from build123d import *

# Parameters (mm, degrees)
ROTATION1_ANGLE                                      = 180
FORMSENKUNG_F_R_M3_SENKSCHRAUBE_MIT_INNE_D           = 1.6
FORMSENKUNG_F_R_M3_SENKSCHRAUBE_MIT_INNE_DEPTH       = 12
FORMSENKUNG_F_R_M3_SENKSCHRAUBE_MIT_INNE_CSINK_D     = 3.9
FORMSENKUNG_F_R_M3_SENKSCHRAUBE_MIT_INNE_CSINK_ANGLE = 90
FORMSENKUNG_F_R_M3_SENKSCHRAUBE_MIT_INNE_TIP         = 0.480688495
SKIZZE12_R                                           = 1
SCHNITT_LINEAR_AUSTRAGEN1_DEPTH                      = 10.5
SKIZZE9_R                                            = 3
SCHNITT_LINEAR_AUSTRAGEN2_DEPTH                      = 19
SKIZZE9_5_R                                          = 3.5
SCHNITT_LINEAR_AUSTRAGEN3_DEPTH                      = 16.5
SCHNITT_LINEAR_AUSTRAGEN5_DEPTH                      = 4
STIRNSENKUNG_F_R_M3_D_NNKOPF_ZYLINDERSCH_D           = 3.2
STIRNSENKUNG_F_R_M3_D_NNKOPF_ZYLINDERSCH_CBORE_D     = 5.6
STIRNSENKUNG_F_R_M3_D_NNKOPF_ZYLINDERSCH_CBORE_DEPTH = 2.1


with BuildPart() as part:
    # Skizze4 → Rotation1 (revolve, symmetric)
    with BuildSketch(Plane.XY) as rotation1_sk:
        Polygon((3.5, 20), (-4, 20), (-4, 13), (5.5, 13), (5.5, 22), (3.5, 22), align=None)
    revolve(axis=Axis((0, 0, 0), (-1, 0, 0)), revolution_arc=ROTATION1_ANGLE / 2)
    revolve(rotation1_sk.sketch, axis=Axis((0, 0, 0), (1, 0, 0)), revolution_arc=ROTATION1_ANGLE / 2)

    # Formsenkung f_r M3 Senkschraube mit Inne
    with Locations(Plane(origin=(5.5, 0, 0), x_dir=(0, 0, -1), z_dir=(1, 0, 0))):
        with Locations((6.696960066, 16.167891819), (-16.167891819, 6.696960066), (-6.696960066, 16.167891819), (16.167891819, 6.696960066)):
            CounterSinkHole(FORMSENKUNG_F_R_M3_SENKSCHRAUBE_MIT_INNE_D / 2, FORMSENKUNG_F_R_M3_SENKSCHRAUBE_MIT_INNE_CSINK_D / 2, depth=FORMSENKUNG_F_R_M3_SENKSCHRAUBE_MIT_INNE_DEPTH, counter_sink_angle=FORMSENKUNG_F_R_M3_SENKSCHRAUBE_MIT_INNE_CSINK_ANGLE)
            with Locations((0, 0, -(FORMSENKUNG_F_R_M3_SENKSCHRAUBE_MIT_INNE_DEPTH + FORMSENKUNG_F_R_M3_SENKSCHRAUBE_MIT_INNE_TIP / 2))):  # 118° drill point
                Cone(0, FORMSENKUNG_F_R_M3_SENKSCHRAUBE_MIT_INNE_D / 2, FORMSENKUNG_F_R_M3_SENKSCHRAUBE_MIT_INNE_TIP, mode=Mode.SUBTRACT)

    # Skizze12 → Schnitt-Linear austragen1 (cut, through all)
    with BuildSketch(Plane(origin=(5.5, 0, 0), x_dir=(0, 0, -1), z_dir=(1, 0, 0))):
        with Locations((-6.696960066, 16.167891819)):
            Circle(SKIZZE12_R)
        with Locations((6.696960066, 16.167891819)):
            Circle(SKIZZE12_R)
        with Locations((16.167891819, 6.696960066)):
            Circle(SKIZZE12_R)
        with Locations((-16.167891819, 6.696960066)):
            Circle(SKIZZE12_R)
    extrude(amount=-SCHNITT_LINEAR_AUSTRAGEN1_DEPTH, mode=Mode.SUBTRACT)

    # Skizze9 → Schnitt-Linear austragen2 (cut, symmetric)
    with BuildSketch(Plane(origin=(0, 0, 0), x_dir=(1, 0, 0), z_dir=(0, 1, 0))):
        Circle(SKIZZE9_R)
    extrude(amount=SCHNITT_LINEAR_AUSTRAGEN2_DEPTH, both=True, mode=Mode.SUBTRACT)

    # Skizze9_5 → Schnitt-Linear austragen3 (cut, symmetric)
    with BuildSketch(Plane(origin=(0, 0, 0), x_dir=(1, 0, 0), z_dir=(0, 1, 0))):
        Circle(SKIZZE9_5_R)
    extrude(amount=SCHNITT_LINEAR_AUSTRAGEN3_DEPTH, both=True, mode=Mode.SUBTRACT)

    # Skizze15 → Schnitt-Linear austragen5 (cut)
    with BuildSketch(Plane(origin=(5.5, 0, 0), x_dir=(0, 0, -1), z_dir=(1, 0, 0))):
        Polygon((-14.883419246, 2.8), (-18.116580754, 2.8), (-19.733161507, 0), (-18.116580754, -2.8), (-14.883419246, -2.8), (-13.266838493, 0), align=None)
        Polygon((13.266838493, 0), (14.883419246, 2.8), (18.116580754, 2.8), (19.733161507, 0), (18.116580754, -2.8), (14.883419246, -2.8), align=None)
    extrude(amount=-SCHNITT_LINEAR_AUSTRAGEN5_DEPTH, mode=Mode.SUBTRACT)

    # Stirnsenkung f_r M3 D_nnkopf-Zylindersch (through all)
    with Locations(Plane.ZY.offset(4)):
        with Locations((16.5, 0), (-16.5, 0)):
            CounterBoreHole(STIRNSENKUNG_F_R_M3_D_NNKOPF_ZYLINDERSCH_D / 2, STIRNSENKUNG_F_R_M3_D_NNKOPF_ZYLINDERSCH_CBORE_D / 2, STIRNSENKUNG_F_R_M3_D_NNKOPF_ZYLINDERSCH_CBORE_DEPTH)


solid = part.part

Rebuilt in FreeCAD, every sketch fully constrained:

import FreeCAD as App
import Part
import Sketcher

V = App.Vector
Q = App.Units.Quantity

doc = App.newDocument("Part")
params = doc.addObject("Spreadsheet::Sheet", "Params")
for row, (alias, value) in enumerate([
    ("sketch1_width", "2 mm"),
    ("sketch1_height", "7 mm"),
    ("sketch1_width2", "7.5 mm"),
    ("revolution_angle", "90 deg"),
    ("sketch2_width", "2 mm"),
    ("sketch2_height", "7 mm"),
    ("sketch2_width2", "7.5 mm"),
    ("revolution2_angle", "90 deg"),
    ("sketch3_diameter", "1.6 mm"),
    ("hole_diameter", "1.6 mm"),
    ("hole_depth", "12 mm"),
    ("hole_csink_diameter", "3.9 mm"),
    ("sketch4_diameter", "2 mm"),
    ("sketch5_diameter", "6 mm"),
    ("pocket2_length", "38 mm"),
    ("sketch6_diameter", "7 mm"),
    ("pocket3_length", "33 mm"),
    ("pocket4_length", "4 mm"),
    ("sketch8_diameter", "3.2 mm"),
    ("hole2_diameter", "3.2 mm"),
    ("hole2_cbore_diameter", "5.6 mm"),
    ("hole2_cbore_depth", "2.1 mm"),
], start=1):
    params.set(f"A{row}", alias)
    params.set(f"B{row}", "=" + value)
    params.setAlias(f"B{row}", alias)

body = doc.addObject("PartDesign::Body", "Body")

sketch1 = doc.addObject("Sketcher::SketchObject", "Sketch")
body.addObject(sketch1)
sketch1.AttachmentSupport = (doc.XY_Plane, [""])
sketch1.MapMode = "FlatFace"
sketch1.addGeometry(Part.LineSegment(V(3.5, 20, 0), V(-4, 20, 0)), False)
sketch1.addGeometry(Part.LineSegment(V(-4, 20, 0), V(-4, 13, 0)), False)
sketch1.addGeometry(Part.LineSegment(V(-4, 13, 0), V(5.5, 13, 0)), False)
sketch1.addGeometry(Part.LineSegment(V(5.5, 13, 0), V(5.5, 22, 0)), False)
sketch1.addGeometry(Part.LineSegment(V(5.5, 22, 0), V(3.5, 22, 0)), False)
sketch1.addGeometry(Part.LineSegment(V(3.5, 22, 0), V(3.5, 20, 0)), False)
sketch1.addConstraint(Sketcher.Constraint("Coincident", 0, 2, 1, 1))
sketch1.addConstraint(Sketcher.Constraint("Coincident", 1, 2, 2, 1))
sketch1.addConstraint(Sketcher.Constraint("Coincident", 2, 2, 3, 1))
sketch1.addConstraint(Sketcher.Constraint("Coincident", 3, 2, 4, 1))
sketch1.addConstraint(Sketcher.Constraint("Coincident", 4, 2, 5, 1))
sketch1.addConstraint(Sketcher.Constraint("Coincident", 5, 2, 0, 1))
sketch1.addConstraint(Sketcher.Constraint("Horizontal", 0))
sketch1.addConstraint(Sketcher.Constraint("Vertical", 1))
sketch1.addConstraint(Sketcher.Constraint("Horizontal", 2))
sketch1.addConstraint(Sketcher.Constraint("Vertical", 3))
sketch1.addConstraint(Sketcher.Constraint("Horizontal", 4))
sketch1.addConstraint(Sketcher.Constraint("Vertical", 5))
sketch1.addConstraint(Sketcher.Constraint("Equal", 4, 5))
sketch1.addConstraint(Sketcher.Constraint("DistanceX", 4, 2, 4, 1, Q("2 mm")))
sketch1.addConstraint(Sketcher.Constraint("DistanceY", 1, 2, 1, 1, Q("7 mm")))
sketch1.addConstraint(Sketcher.Constraint("DistanceX", 0, 2, 0, 1, Q("7.5 mm")))
sketch1.addConstraint(Sketcher.Constraint("DistanceX", 0, 2, -1, 1, Q("4 mm")))
sketch1.addConstraint(Sketcher.Constraint("DistanceY", -1, 1, 0, 2, Q("20 mm")))
sketch1.setExpression("Constraints[13]", "Params.sketch1_width")
sketch1.setExpression("Constraints[14]", "Params.sketch1_height")
sketch1.setExpression("Constraints[15]", "Params.sketch1_width2")
revolution = doc.addObject("PartDesign::Revolution", "Revolution")
body.addObject(revolution)
revolution.Profile = sketch1
revolution.ReferenceAxis = (sketch1, ["H_Axis"])
revolution.setExpression("Angle", "Params.revolution_angle")
revolution.Reversed = True

sketch2 = doc.addObject("Sketcher::SketchObject", "Sketch001")
body.addObject(sketch2)
sketch2.AttachmentSupport = (doc.XY_Plane, [""])
sketch2.MapMode = "FlatFace"
sketch2.addGeometry(Part.LineSegment(V(3.5, 20, 0), V(-4, 20, 0)), False)
sketch2.addGeometry(Part.LineSegment(V(-4, 20, 0), V(-4, 13, 0)), False)
sketch2.addGeometry(Part.LineSegment(V(-4, 13, 0), V(5.5, 13, 0)), False)
sketch2.addGeometry(Part.LineSegment(V(5.5, 13, 0), V(5.5, 22, 0)), False)
sketch2.addGeometry(Part.LineSegment(V(5.5, 22, 0), V(3.5, 22, 0)), False)
sketch2.addGeometry(Part.LineSegment(V(3.5, 22, 0), V(3.5, 20, 0)), False)
sketch2.addConstraint(Sketcher.Constraint("Coincident", 0, 2, 1, 1))
sketch2.addConstraint(Sketcher.Constraint("Coincident", 1, 2, 2, 1))
sketch2.addConstraint(Sketcher.Constraint("Coincident", 2, 2, 3, 1))
sketch2.addConstraint(Sketcher.Constraint("Coincident", 3, 2, 4, 1))
sketch2.addConstraint(Sketcher.Constraint("Coincident", 4, 2, 5, 1))
sketch2.addConstraint(Sketcher.Constraint("Coincident", 5, 2, 0, 1))
sketch2.addConstraint(Sketcher.Constraint("Horizontal", 0))
sketch2.addConstraint(Sketcher.Constraint("Vertical", 1))
sketch2.addConstraint(Sketcher.Constraint("Horizontal", 2))
sketch2.addConstraint(Sketcher.Constraint("Vertical", 3))
sketch2.addConstraint(Sketcher.Constraint("Horizontal", 4))
sketch2.addConstraint(Sketcher.Constraint("Vertical", 5))
sketch2.addConstraint(Sketcher.Constraint("Equal", 4, 5))
sketch2.addConstraint(Sketcher.Constraint("DistanceX", 4, 2, 4, 1, Q("2 mm")))
sketch2.addConstraint(Sketcher.Constraint("DistanceY", 1, 2, 1, 1, Q("7 mm")))
sketch2.addConstraint(Sketcher.Constraint("DistanceX", 0, 2, 0, 1, Q("7.5 mm")))
sketch2.addConstraint(Sketcher.Constraint("DistanceX", 0, 2, -1, 1, Q("4 mm")))
sketch2.addConstraint(Sketcher.Constraint("DistanceY", -1, 1, 0, 2, Q("20 mm")))
sketch2.setExpression("Constraints[13]", "Params.sketch2_width")
sketch2.setExpression("Constraints[14]", "Params.sketch2_height")
sketch2.setExpression("Constraints[15]", "Params.sketch2_width2")
revolution2 = doc.addObject("PartDesign::Revolution", "Revolution001")
body.addObject(revolution2)
revolution2.Profile = sketch2
revolution2.ReferenceAxis = (sketch2, ["H_Axis"])
revolution2.setExpression("Angle", "Params.revolution2_angle")

sketch3 = doc.addObject("Sketcher::SketchObject", "Sketch002")
body.addObject(sketch3)
sketch3.AttachmentSupport = (doc.YZ_Plane, [""])
sketch3.MapMode = "FlatFace"
sketch3.AttachmentOffset = App.Placement(V(0, 0, 5.5), App.Rotation())
sketch3.addGeometry(Part.Circle(V(16.2, -6.7, 0), V(0, 0, 1), 0.8), False)
sketch3.addGeometry(Part.Circle(V(6.7, 16.2, 0), V(0, 0, 1), 0.8), False)
sketch3.addGeometry(Part.Circle(V(16.2, 6.7, 0), V(0, 0, 1), 0.8), False)
sketch3.addGeometry(Part.Circle(V(6.7, -16.2, 0), V(0, 0, 1), 0.8), False)
sketch3.addConstraint(Sketcher.Constraint("Equal", 0, 1))
sketch3.addConstraint(Sketcher.Constraint("Equal", 1, 2))
sketch3.addConstraint(Sketcher.Constraint("Equal", 2, 3))
sketch3.addConstraint(Sketcher.Constraint("Symmetric", 0, 3, 2, 3, -1))
sketch3.addConstraint(Sketcher.Constraint("Symmetric", 1, 3, 3, 3, -1))
sketch3.addConstraint(Sketcher.Constraint("Diameter", 0, Q("1.6 mm")))
sketch3.addConstraint(Sketcher.Constraint("DistanceX", -1, 1, 0, 3, Q("16.167892 mm")))
sketch3.addConstraint(Sketcher.Constraint("DistanceY", 0, 3, -1, 1, Q("6.69696 mm")))
sketch3.addConstraint(Sketcher.Constraint("DistanceX", -1, 1, 1, 3, Q("6.69696 mm")))
sketch3.addConstraint(Sketcher.Constraint("DistanceY", -1, 1, 1, 3, Q("16.167892 mm")))
sketch3.setExpression("Constraints[5]", "Params.sketch3_diameter")
doc.recompute()
hole = doc.addObject("PartDesign::Hole", "Hole")
body.addObject(hole)
hole.Profile = sketch3
hole.ThreadType = "None"
hole.setExpression("Diameter", "Params.hole_diameter")
hole.DepthType = "Dimension"
hole.setExpression("Depth", "Params.hole_depth")
hole.DrillPoint = "Angled"
hole.DrillPointAngle = 118
hole.HoleCutType = "Countersink"
hole.setExpression("HoleCutDiameter", "Params.hole_csink_diameter")
hole.HoleCutCountersinkAngle = 90

sketch4 = doc.addObject("Sketcher::SketchObject", "Sketch003")
body.addObject(sketch4)
sketch4.AttachmentSupport = (doc.YZ_Plane, [""])
sketch4.MapMode = "FlatFace"
sketch4.AttachmentOffset = App.Placement(V(0, 0, 5.5), App.Rotation())
sketch4.addGeometry(Part.Circle(V(16.2, 6.7, 0), V(0, 0, 1), 1), False)
sketch4.addGeometry(Part.Circle(V(16.2, -6.7, 0), V(0, 0, 1), 1), False)
sketch4.addGeometry(Part.Circle(V(6.7, -16.2, 0), V(0, 0, 1), 1), False)
sketch4.addGeometry(Part.Circle(V(6.7, 16.2, 0), V(0, 0, 1), 1), False)
sketch4.addConstraint(Sketcher.Constraint("Equal", 0, 1))
sketch4.addConstraint(Sketcher.Constraint("Equal", 1, 2))
sketch4.addConstraint(Sketcher.Constraint("Equal", 2, 3))
sketch4.addConstraint(Sketcher.Constraint("Symmetric", 0, 3, 1, 3, -1))
sketch4.addConstraint(Sketcher.Constraint("Symmetric", 2, 3, 3, 3, -1))
sketch4.addConstraint(Sketcher.Constraint("Diameter", 0, Q("2 mm")))
sketch4.addConstraint(Sketcher.Constraint("DistanceX", -1, 1, 0, 3, Q("16.167892 mm")))
sketch4.addConstraint(Sketcher.Constraint("DistanceY", -1, 1, 0, 3, Q("6.69696 mm")))
sketch4.addConstraint(Sketcher.Constraint("DistanceX", -1, 1, 2, 3, Q("6.69696 mm")))
sketch4.addConstraint(Sketcher.Constraint("DistanceY", 2, 3, -1, 1, Q("16.167892 mm")))
sketch4.setExpression("Constraints[5]", "Params.sketch4_diameter")
pocket1 = doc.addObject("PartDesign::Pocket", "Pocket")
body.addObject(pocket1)
pocket1.Profile = sketch4
pocket1.Type = "ThroughAll"

sketch5 = doc.addObject("Sketcher::SketchObject", "Sketch004")
body.addObject(sketch5)
sketch5.AttachmentSupport = (doc.XZ_Plane, [""])
sketch5.MapMode = "FlatFace"
sketch5.addGeometry(Part.Circle(V(0, 0, 0), V(0, 0, 1), 3), False)
sketch5.addConstraint(Sketcher.Constraint("Coincident", 0, 3, -1, 1))
sketch5.addConstraint(Sketcher.Constraint("Diameter", 0, Q("6 mm")))
sketch5.setExpression("Constraints[1]", "Params.sketch5_diameter")
pocket2 = doc.addObject("PartDesign::Pocket", "Pocket001")
body.addObject(pocket2)
pocket2.Profile = sketch5
pocket2.setExpression("Length", "Params.pocket2_length")
pocket2.Midplane = True

sketch6 = doc.addObject("Sketcher::SketchObject", "Sketch005")
body.addObject(sketch6)
sketch6.AttachmentSupport = (doc.XZ_Plane, [""])
sketch6.MapMode = "FlatFace"
sketch6.addGeometry(Part.Circle(V(0, 0, 0), V(0, 0, 1), 3.5), False)
sketch6.addConstraint(Sketcher.Constraint("Coincident", 0, 3, -1, 1))
sketch6.addConstraint(Sketcher.Constraint("Diameter", 0, Q("7 mm")))
sketch6.setExpression("Constraints[1]", "Params.sketch6_diameter")
pocket3 = doc.addObject("PartDesign::Pocket", "Pocket002")
body.addObject(pocket3)
pocket3.Profile = sketch6
pocket3.setExpression("Length", "Params.pocket3_length")
pocket3.Midplane = True

sketch7 = doc.addObject("Sketcher::SketchObject", "Sketch006")
body.addObject(sketch7)
sketch7.AttachmentSupport = (doc.YZ_Plane, [""])
sketch7.MapMode = "FlatFace"
sketch7.AttachmentOffset = App.Placement(V(0, 0, 5.5), App.Rotation())
sketch7.addGeometry(Part.LineSegment(V(2.8, 14.9, 0), V(2.8, 18.1, 0)), False)
sketch7.addGeometry(Part.LineSegment(V(2.8, 18.1, 0), V(0, 19.7, 0)), False)
sketch7.addGeometry(Part.LineSegment(V(0, 19.7, 0), V(-2.8, 18.1, 0)), False)
sketch7.addGeometry(Part.LineSegment(V(-2.8, 18.1, 0), V(-2.8, 14.9, 0)), False)
sketch7.addGeometry(Part.LineSegment(V(-2.8, 14.9, 0), V(0, 13.3, 0)), False)
sketch7.addGeometry(Part.LineSegment(V(0, 13.3, 0), V(2.8, 14.9, 0)), False)
sketch7.addGeometry(Part.LineSegment(V(2.8, -14.9, 0), V(0, -13.3, 0)), False)
sketch7.addGeometry(Part.LineSegment(V(0, -13.3, 0), V(-2.8, -14.9, 0)), False)
sketch7.addGeometry(Part.LineSegment(V(-2.8, -14.9, 0), V(-2.8, -18.1, 0)), False)
sketch7.addGeometry(Part.LineSegment(V(-2.8, -18.1, 0), V(0, -19.7, 0)), False)
sketch7.addGeometry(Part.LineSegment(V(0, -19.7, 0), V(2.8, -18.1, 0)), False)
sketch7.addGeometry(Part.LineSegment(V(2.8, -18.1, 0), V(2.8, -14.9, 0)), False)
sketch7.addConstraint(Sketcher.Constraint("Coincident", 0, 2, 1, 1))
sketch7.addConstraint(Sketcher.Constraint("Coincident", 1, 2, 2, 1))
sketch7.addConstraint(Sketcher.Constraint("Coincident", 2, 2, 3, 1))
sketch7.addConstraint(Sketcher.Constraint("Coincident", 3, 2, 4, 1))
sketch7.addConstraint(Sketcher.Constraint("Coincident", 4, 2, 5, 1))
sketch7.addConstraint(Sketcher.Constraint("Coincident", 5, 2, 0, 1))
sketch7.addConstraint(Sketcher.Constraint("Coincident", 6, 2, 7, 1))
sketch7.addConstraint(Sketcher.Constraint("Coincident", 7, 2, 8, 1))
sketch7.addConstraint(Sketcher.Constraint("Coincident", 8, 2, 9, 1))
sketch7.addConstraint(Sketcher.Constraint("Coincident", 9, 2, 10, 1))
sketch7.addConstraint(Sketcher.Constraint("Coincident", 10, 2, 11, 1))
sketch7.addConstraint(Sketcher.Constraint("Coincident", 11, 2, 6, 1))
sketch7.addConstraint(Sketcher.Constraint("Vertical", 0))
sketch7.addConstraint(Sketcher.Constraint("Vertical", 3))
sketch7.addConstraint(Sketcher.Constraint("Vertical", 8))
sketch7.addConstraint(Sketcher.Constraint("Vertical", 11))
sketch7.addConstraint(Sketcher.Constraint("Symmetric", 4, 2, 6, 2, -1, 1))
sketch7.addConstraint(Sketcher.Constraint("Symmetric", 5, 2, 7, 2, -1, 1))
sketch7.addConstraint(Sketcher.Constraint("Symmetric", 1, 2, 9, 2, -1, 1))
sketch7.addConstraint(Sketcher.Constraint("Symmetric", 2, 2, 10, 2, -1, 1))
sketch7.addConstraint(Sketcher.Constraint("Symmetric", 0, 2, 2, 2, -2))
sketch7.addConstraint(Sketcher.Constraint("PointOnObject", 1, 2, -2))
sketch7.addConstraint(Sketcher.Constraint("PointOnObject", 4, 2, -2))
sketch7.addConstraint(Sketcher.Constraint("Parallel", 1, 4))
sketch7.addConstraint(Sketcher.Constraint("Parallel", 2, 5))
sketch7.addConstraint(Sketcher.Constraint("Parallel", 4, 6))
sketch7.addConstraint(Sketcher.Constraint("Parallel", 6, 9))
sketch7.addConstraint(Sketcher.Constraint("Angle", 1, Q("150 deg")))
sketch7.addConstraint(Sketcher.Constraint("DistanceY", 7, 2, 2, 2, Q("33 mm")))
sketch7.addConstraint(Sketcher.Constraint("DistanceX", -1, 1, 0, 2, Q("2.8 mm")))
sketch7.addConstraint(Sketcher.Constraint("DistanceY", 0, 1, 0, 2, Q("3.233162 mm")))
pocket4 = doc.addObject("PartDesign::Pocket", "Pocket003")
body.addObject(pocket4)
pocket4.Profile = sketch7
pocket4.setExpression("Length", "Params.pocket4_length")

sketch8 = doc.addObject("Sketcher::SketchObject", "Sketch007")
body.addObject(sketch8)
sketch8.AttachmentSupport = (doc.YZ_Plane, [""])
sketch8.MapMode = "FlatFace"
sketch8.AttachmentOffset = App.Placement(V(0, 0, -4), App.Rotation())
sketch8.addGeometry(Part.Circle(V(0, 16.5, 0), V(0, 0, 1), 1.6), False)
sketch8.addGeometry(Part.Circle(V(0, -16.5, 0), V(0, 0, 1), 1.6), False)
sketch8.addConstraint(Sketcher.Constraint("Equal", 0, 1))
sketch8.addConstraint(Sketcher.Constraint("Symmetric", 0, 3, 1, 3, -1, 1))
sketch8.addConstraint(Sketcher.Constraint("PointOnObject", 0, 3, -2))
sketch8.addConstraint(Sketcher.Constraint("Diameter", 0, Q("3.2 mm")))
sketch8.addConstraint(Sketcher.Constraint("DistanceY", 1, 3, 0, 3, Q("33 mm")))
sketch8.setExpression("Constraints[3]", "Params.sketch8_diameter")
doc.recompute()
hole2 = doc.addObject("PartDesign::Hole", "Hole001")
body.addObject(hole2)
hole2.Profile = sketch8
hole2.ThreadType = "None"
hole2.setExpression("Diameter", "Params.hole2_diameter")
hole2.DepthType = "ThroughAll"
hole2.HoleCutType = "Counterbore"
hole2.setExpression("HoleCutDiameter", "Params.hole2_cbore_diameter")
hole2.setExpression("HoleCutDepth", "Params.hole2_cbore_depth")
hole2.Reversed = True

doc.recompute()
